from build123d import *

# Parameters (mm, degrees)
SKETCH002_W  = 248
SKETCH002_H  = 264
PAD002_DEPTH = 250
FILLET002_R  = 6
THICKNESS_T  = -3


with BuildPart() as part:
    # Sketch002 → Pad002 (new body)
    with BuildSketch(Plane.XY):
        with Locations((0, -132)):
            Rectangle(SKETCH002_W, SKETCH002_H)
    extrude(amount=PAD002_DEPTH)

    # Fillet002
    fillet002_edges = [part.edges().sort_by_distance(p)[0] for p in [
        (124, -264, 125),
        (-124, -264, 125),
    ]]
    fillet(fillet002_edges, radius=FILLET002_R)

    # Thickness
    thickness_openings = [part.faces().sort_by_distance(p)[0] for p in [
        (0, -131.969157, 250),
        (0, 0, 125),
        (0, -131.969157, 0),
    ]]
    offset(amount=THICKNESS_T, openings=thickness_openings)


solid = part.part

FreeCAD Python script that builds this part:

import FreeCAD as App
import Part
import Sketcher


def edges_at(feature, points):
    """Names of the edges that pass closest to the given points."""
    edges = feature.Shape.Edges
    near = lambda p: min(range(len(edges)), key=lambda i: edges[i].distToShape(Part.Vertex(*p))[0])
    return sorted({f"Edge{near(p) + 1}" for p in points})


def faces_at(feature, points):
    """Names of the faces that lie closest to the given points."""
    faces = feature.Shape.Faces
    near = lambda p: min(range(len(faces)), key=lambda i: faces[i].distToShape(Part.Vertex(*p))[0])
    return sorted({f"Face{near(p) + 1}" for p in points})


def add_polygon(sketch, points):
    """Adds a closed chain of lines whose ends are joined by coincident constraints."""
    first, n = sketch.GeometryCount, len(points)
    for a, b in zip(points, points[1:] + points[:1]):
        sketch.addGeometry(Part.LineSegment(App.Vector(*a, 0), App.Vector(*b, 0)), False)
    for i in range(n):
        sketch.addConstraint(Sketcher.Constraint("Coincident", first + i, 2, first + (i + 1) % n, 1))

doc = App.newDocument("Part")
body = doc.addObject("PartDesign::Body", "Body")

sketch1 = body.newObject("Sketcher::SketchObject", "Sketch")
sketch1.AttachmentSupport = (doc.getObject("XY_Plane"), [""])
sketch1.MapMode = "FlatFace"
add_polygon(sketch1, [(-124, 0), (-124, -264), (124, -264), (124, 0)])
sketch1.addConstraint([
    Sketcher.Constraint("Vertical", 0),
    Sketcher.Constraint("Horizontal", 1),
    Sketcher.Constraint("Vertical", 2),
    Sketcher.Constraint("Horizontal", 3),
    Sketcher.Constraint("Symmetric", 2, 2, 3, 2, -1, 1),
    Sketcher.Constraint("DistanceX", 1, 1, 1, 2, 248.0),
    Sketcher.Constraint("DistanceY", 0, 2, 0, 1, 264.0),
])
pad1 = body.newObject("PartDesign::Pad", "Pad")
pad1.Profile = sketch1
pad1.Length = 250
doc.recompute()

fillet = body.newObject("PartDesign::Fillet", "Fillet")
fillet.Base = (pad1, edges_at(pad1, [(124, -264, 125), (-124, -264, 125)]))
fillet.Radius = 6
doc.recompute()

thickness = body.newObject("PartDesign::Thickness", "Thickness")
thickness.Base = (fillet, faces_at(fillet, [(0, -132, 250), (0, 0, 125), (0, -132, 0)]))
thickness.Value = 3
thickness.Reversed = True
thickness.Join = "Arc"

doc.recompute()
